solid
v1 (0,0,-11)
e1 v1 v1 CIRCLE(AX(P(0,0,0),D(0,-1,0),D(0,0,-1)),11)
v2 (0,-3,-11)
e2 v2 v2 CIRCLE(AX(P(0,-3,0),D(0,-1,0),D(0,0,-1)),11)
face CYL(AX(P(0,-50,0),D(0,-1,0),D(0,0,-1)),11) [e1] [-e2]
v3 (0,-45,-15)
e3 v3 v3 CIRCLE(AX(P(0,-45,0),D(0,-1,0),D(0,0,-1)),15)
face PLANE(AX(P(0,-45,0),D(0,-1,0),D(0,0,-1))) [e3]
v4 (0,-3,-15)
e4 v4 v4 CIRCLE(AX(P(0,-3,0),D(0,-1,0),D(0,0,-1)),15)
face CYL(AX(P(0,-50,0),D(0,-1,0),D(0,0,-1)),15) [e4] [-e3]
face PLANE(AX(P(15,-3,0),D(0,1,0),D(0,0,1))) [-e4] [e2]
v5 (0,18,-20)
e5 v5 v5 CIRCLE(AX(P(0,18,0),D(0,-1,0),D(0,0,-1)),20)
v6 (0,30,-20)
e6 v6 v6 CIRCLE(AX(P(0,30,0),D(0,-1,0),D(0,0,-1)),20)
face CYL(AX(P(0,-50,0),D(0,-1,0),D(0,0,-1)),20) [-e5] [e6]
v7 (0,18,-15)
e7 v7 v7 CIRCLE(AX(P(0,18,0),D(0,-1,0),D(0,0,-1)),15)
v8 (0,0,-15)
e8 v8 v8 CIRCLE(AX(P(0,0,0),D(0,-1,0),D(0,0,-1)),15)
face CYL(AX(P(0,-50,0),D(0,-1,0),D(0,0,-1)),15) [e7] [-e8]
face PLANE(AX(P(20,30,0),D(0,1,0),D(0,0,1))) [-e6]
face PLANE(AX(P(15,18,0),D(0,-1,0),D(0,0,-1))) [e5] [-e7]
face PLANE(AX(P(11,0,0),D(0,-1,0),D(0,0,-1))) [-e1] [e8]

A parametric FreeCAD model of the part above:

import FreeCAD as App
import Part
import Sketcher
from FreeCAD import Vector
Q = App.Units.Quantity


def add_polygon(sketch, points):
    """Adds a closed chain of lines whose ends are joined by coincident constraints."""
    first, n = sketch.GeometryCount, len(points)
    for a, b in zip(points, points[1:] + points[:1]):
        sketch.addGeometry(Part.LineSegment(App.Vector(*a, 0), App.Vector(*b, 0)), False)
    for i in range(n):
        sketch.addConstraint(Sketcher.Constraint("Coincident", first + i, 2, first + (i + 1) % n, 1))

doc = App.newDocument("Part")
body = doc.addObject("PartDesign::Body", "Body")

# Sketch on XY plane
sketch1 = body.newObject("Sketcher::SketchObject", "Sketch")
sketch1.AttachmentSupport = (doc.getObject("XY_Plane"), [""])
sketch1.MapMode = "FlatFace"
add_polygon(sketch1, [(0, -45), (15, -45), (15, -3), (11, -3), (11, 0), (15, 0), (15, 18), (20, 18), (20, 30), (0, 30)])  # lines 0-9
sketch1.addConstraint([
    Sketcher.Constraint("Horizontal", 0),
    Sketcher.Constraint("Vertical", 1),
    Sketcher.Constraint("Horizontal", 2),
    Sketcher.Constraint("Vertical", 3),
    Sketcher.Constraint("Horizontal", 4),
    Sketcher.Constraint("Vertical", 5),
    Sketcher.Constraint("Horizontal", 6),
    Sketcher.Constraint("Vertical", 7),
    Sketcher.Constraint("Horizontal", 8),
    Sketcher.Constraint("Vertical", 9),
    Sketcher.Constraint("PointOnObject", 3, 2, -1),
    Sketcher.Constraint("PointOnObject", 8, 2, -2),
    Sketcher.Constraint("Vertical", 1, 2, 4, 2),
    Sketcher.Constraint("DistanceX", 0, 1, 0, 2, Q("15 mm")),
    Sketcher.Constraint("DistanceX", 2, 2, 2, 1, Q("4 mm")),
    Sketcher.Constraint("DistanceX", 6, 1, 6, 2, Q("5 mm")),
    Sketcher.Constraint("DistanceY", 1, 1, 1, 2, Q("42 mm")),
    Sketcher.Constraint("DistanceY", 3, 1, 3, 2, Q("3 mm")),
    Sketcher.Constraint("DistanceY", 5, 1, 5, 2, Q("18 mm")),
    Sketcher.Constraint("DistanceY", 7, 1, 7, 2, Q("12 mm")),
])
revolution = body.newObject("PartDesign::Revolution", "Revolution")
revolution.Profile = sketch1
revolution.ReferenceAxis = (sketch1, ["V_Axis"])
revolution.Angle = 360

doc.recompute()
